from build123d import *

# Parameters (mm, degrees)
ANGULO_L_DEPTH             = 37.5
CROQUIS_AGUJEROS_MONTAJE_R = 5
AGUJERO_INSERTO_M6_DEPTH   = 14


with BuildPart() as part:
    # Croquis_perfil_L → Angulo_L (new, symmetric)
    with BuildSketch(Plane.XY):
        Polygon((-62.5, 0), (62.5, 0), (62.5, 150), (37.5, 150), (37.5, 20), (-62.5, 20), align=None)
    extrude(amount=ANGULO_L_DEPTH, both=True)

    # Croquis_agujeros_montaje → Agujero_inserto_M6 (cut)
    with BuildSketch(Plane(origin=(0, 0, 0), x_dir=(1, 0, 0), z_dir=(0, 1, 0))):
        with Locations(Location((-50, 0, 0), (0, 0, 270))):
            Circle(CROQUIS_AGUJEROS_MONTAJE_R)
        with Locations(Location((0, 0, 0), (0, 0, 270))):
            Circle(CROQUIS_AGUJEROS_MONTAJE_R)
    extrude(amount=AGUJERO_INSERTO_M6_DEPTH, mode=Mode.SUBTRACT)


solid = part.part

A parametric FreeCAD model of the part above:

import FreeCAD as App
import Part
import Sketcher
Q = App.Units.Quantity

doc = App.newDocument("Part")
params = doc.addObject("Spreadsheet::Sheet", "Params")
for row, (alias, value) in enumerate([
    ("sketch1_width", "125 mm"),
    ("sketch1_width2", "25 mm"),
    ("sketch1_height", "150 mm"),
    ("sketch1_height2", "130 mm"),
    ("pad1_length", "75 mm"),
    ("sketch2_diameter", "10 mm"),
    ("pocket1_length", "14 mm"),
], start=1):
    params.set(f"A{row}", alias)
    params.set(f"B{row}", "=" + value)
    params.setAlias(f"B{row}", alias)

body = doc.addObject("PartDesign::Body", "Body")

# Sketch on XY plane
sketch1 = body.newObject("Sketcher::SketchObject", "Sketch")
sketch1.AttachmentSupport = (doc.getObject("XY_Plane"), [""])
sketch1.MapMode = "FlatFace"
sketch1.addGeometry([
    Part.LineSegment(App.Vector(-62, 0, 0), App.Vector(62, 0, 0)),  # 0
    Part.LineSegment(App.Vector(62, 0, 0), App.Vector(62, 150, 0)),  # 1
    Part.LineSegment(App.Vector(62, 150, 0), App.Vector(38, 150, 0)),  # 2
    Part.LineSegment(App.Vector(38, 150, 0), App.Vector(38, 20, 0)),  # 3
    Part.LineSegment(App.Vector(38, 20, 0), App.Vector(-62, 20, 0)),  # 4
    Part.LineSegment(App.Vector(-62, 20, 0), App.Vector(-62, 0, 0)),  # 5
], False)
sketch1.addConstraint([
    Sketcher.Constraint("Coincident", 0, 2, 1, 1),
    Sketcher.Constraint("Coincident", 1, 2, 2, 1),
    Sketcher.Constraint("Coincident", 2, 2, 3, 1),
    Sketcher.Constraint("Coincident", 3, 2, 4, 1),
    Sketcher.Constraint("Coincident", 4, 2, 5, 1),
    Sketcher.Constraint("Coincident", 5, 2, 0, 1),
    Sketcher.Constraint("Horizontal", 0),
    Sketcher.Constraint("Vertical", 1),
    Sketcher.Constraint("Horizontal", 2),
    Sketcher.Constraint("Vertical", 3),
    Sketcher.Constraint("Horizontal", 4),
    Sketcher.Constraint("Vertical", 5),
    Sketcher.Constraint("Symmetric", 0, 2, 5, 2, -1, 1),
    Sketcher.Constraint("DistanceX", 0, 1, 0, 2, Q("125 mm")),
    Sketcher.Constraint("DistanceX", 2, 2, 2, 1, Q("25 mm")),
    Sketcher.Constraint("DistanceY", 1, 1, 1, 2, Q("150 mm")),
    Sketcher.Constraint("DistanceY", 3, 2, 3, 1, Q("130 mm")),
])
sketch1.setExpression("Constraints[13]", "Params.sketch1_width")
sketch1.setExpression("Constraints[14]", "Params.sketch1_width2")
sketch1.setExpression("Constraints[15]", "Params.sketch1_height")
sketch1.setExpression("Constraints[16]", "Params.sketch1_height2")
pad1 = body.newObject("PartDesign::Pad", "Pad")
pad1.Profile = sketch1
pad1.setExpression("Length", "Params.pad1_length")
pad1.Midplane = True

# Sketch on XZ plane
sketch2 = body.newObject("Sketcher::SketchObject", "Sketch001")
sketch2.AttachmentSupport = (doc.getObject("XZ_Plane"), [""])
sketch2.MapMode = "FlatFace"
sketch2.addGeometry([
    Part.Circle(App.Vector(-50, 0, 0), App.Vector(0, 0, 1), 5),
    Part.Circle(App.Vector(0, 0, 0), App.Vector(0, 0, 1), 5),
], False)
sketch2.addConstraint([
    Sketcher.Constraint("Coincident", 1, 3, -1, 1),
    Sketcher.Constraint("Equal", 0, 1),
    Sketcher.Constraint("PointOnObject", 0, 3, -1),
    Sketcher.Constraint("Diameter", 0, Q("10 mm")),
    Sketcher.Constraint("DistanceX", 0, 3, -1, 1, Q("50 mm")),
])
sketch2.setExpression("Constraints[3]", "Params.sketch2_diameter")
pocket1 = body.newObject("PartDesign::Pocket", "Pocket")
pocket1.Profile = sketch2
pocket1.setExpression("Length", "Params.pocket1_length")

doc.recompute()
